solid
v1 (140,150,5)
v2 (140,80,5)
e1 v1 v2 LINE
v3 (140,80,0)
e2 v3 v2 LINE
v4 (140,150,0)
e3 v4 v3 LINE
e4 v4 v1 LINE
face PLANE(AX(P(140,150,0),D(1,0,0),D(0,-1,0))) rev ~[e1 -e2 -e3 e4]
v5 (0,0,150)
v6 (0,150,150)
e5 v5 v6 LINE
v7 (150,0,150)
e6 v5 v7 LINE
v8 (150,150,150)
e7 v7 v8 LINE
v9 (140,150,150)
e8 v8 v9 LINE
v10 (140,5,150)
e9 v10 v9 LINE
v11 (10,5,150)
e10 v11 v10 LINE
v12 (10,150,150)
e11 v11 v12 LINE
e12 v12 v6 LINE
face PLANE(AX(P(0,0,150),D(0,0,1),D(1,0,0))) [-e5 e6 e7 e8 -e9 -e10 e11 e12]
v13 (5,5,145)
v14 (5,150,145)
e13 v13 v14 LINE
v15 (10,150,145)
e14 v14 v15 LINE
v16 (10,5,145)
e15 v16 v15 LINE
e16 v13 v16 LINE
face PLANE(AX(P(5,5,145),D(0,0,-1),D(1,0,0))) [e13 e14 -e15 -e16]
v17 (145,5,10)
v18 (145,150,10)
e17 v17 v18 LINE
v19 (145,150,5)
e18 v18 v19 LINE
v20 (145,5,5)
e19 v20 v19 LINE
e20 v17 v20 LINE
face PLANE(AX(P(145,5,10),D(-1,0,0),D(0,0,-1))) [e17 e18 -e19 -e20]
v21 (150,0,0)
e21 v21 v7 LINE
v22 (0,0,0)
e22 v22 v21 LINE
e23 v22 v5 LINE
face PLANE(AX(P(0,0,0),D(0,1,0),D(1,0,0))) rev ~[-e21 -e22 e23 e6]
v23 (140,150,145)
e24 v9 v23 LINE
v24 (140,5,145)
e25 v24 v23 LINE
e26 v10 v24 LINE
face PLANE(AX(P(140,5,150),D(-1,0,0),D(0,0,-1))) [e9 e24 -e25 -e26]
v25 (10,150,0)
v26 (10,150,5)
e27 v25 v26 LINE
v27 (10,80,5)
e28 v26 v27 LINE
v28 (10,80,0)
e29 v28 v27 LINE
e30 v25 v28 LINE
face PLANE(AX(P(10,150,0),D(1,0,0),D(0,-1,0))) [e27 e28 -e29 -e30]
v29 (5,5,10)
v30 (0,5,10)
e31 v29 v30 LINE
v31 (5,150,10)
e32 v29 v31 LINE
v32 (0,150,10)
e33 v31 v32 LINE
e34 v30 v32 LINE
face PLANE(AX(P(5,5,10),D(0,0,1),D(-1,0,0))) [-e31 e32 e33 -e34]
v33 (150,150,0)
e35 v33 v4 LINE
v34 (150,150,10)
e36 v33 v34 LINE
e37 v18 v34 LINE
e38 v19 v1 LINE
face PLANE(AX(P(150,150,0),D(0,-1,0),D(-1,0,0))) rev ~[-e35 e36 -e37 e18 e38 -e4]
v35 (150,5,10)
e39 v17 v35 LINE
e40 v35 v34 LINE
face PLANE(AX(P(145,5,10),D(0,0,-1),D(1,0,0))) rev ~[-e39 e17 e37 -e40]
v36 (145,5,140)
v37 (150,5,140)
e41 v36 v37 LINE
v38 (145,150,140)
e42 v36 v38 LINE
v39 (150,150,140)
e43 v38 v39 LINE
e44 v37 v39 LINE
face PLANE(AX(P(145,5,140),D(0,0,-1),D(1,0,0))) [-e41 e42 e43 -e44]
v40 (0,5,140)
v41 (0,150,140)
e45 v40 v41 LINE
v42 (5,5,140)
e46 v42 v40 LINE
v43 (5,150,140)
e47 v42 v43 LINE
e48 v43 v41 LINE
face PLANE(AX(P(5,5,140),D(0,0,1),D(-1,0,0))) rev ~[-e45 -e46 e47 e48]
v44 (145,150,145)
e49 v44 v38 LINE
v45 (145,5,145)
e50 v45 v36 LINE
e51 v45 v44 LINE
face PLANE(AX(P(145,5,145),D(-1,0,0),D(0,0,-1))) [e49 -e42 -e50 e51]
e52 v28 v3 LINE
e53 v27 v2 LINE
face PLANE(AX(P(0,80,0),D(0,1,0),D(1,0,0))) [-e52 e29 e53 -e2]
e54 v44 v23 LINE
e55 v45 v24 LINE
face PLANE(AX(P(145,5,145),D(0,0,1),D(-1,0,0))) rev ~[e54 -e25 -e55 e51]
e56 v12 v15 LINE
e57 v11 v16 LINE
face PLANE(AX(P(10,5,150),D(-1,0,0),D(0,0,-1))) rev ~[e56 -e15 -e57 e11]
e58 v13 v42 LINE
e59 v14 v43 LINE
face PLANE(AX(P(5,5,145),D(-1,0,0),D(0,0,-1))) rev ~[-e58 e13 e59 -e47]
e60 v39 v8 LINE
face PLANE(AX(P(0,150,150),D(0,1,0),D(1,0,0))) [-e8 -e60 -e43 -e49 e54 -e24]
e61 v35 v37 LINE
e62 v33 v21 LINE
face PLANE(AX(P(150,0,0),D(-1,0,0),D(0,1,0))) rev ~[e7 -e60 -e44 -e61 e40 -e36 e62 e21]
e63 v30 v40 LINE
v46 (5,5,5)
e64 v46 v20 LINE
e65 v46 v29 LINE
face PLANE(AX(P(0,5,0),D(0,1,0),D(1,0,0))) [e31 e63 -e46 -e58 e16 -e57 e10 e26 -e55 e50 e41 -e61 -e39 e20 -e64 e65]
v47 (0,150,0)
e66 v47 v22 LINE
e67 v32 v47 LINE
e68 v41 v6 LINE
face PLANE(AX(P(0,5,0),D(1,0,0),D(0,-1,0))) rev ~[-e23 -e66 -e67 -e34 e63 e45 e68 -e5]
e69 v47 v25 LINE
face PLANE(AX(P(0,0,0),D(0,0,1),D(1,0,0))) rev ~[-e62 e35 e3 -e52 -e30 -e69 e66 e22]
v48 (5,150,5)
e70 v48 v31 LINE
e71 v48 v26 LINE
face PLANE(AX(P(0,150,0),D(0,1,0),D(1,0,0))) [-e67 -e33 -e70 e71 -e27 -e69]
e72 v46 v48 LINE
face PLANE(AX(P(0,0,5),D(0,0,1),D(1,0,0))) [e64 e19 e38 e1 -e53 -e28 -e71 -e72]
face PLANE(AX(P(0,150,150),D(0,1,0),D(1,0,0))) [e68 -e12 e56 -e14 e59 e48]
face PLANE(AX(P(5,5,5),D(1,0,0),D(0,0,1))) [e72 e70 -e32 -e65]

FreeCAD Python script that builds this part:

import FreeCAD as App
import Part
import Sketcher
from FreeCAD import Vector
Q = App.Units.Quantity

doc = App.newDocument("Part")
params = doc.addObject("Spreadsheet::Sheet", "Params")
for row, (alias, value) in enumerate([
    ("sketch1_width", "150 mm"),
    ("sketch1_height", "5 mm"),
    ("pad1_length", "150 mm"),
    ("sketch2_width", "150 mm"),
    ("pad2_length", "5 mm"),
    ("sketch3_width", "10 mm"),
    ("pad3_length", "5 mm"),
    ("sketch4_width", "5 mm"),
    ("pad4_length", "145 mm"),
], start=1):
    params.set(f"A{row}", alias)
    params.set(f"B{row}", "=" + value)
    params.setAlias(f"B{row}", alias)

body = doc.addObject("PartDesign::Body", "Body")

# Sketch on XY plane
sketch1 = body.newObject("Sketcher::SketchObject", "Sketch")
sketch1.AttachmentSupport = (doc.getObject("XY_Plane"), [""])
sketch1.MapMode = "FlatFace"
sketch1.addGeometry([
    Part.LineSegment(Vector(0, 5, 0), Vector(0, 0, 0)),
    Part.LineSegment(Vector(0, 0, 0), Vector(150, 0, 0)),
    Part.LineSegment(Vector(150, 0, 0), Vector(150, 5, 0)),
    Part.LineSegment(Vector(150, 5, 0), Vector(0, 5, 0)),
], False)
sketch1.addConstraint([
    Sketcher.Constraint("Coincident", 0, 2, 1, 1),
    Sketcher.Constraint("Coincident", 1, 2, 2, 1),
    Sketcher.Constraint("Coincident", 2, 2, 3, 1),
    Sketcher.Constraint("Coincident", 3, 2, 0, 1),
    Sketcher.Constraint("Vertical", 0),
    Sketcher.Constraint("Horizontal", 1),
    Sketcher.Constraint("Vertical", 2),
    Sketcher.Constraint("Horizontal", 3),
    Sketcher.Constraint("Coincident", 0, 2, -1, 1),
    Sketcher.Constraint("DistanceX", 1, 1, 1, 2, Q("150 mm")),
    Sketcher.Constraint("DistanceY", 0, 2, 0, 1, Q("5 mm")),
])
sketch1.setExpression("Constraints[9]", "Params.sketch1_width")
sketch1.setExpression("Constraints[10]", "Params.sketch1_height")
pad1 = body.newObject("PartDesign::Pad", "Pad")
pad1.Profile = sketch1
pad1.setExpression("Length", "Params.pad1_length")

# Sketch on XY plane
sketch2 = body.newObject("Sketcher::SketchObject", "Sketch001")
sketch2.AttachmentSupport = (doc.getObject("XY_Plane"), [""])
sketch2.MapMode = "FlatFace"
sketch2.addGeometry([
    Part.LineSegment(Vector(0, 80, 0), Vector(0, 5, 0)),
    Part.LineSegment(Vector(0, 5, 0), Vector(150, 5, 0)),
    Part.LineSegment(Vector(150, 5, 0), Vector(150, 80, 0)),
    Part.LineSegment(Vector(150, 80, 0), Vector(0, 80, 0)),
], False)
sketch2.addConstraint([
    Sketcher.Constraint("Coincident", 0, 2, 1, 1),
    Sketcher.Constraint("Coincident", 1, 2, 2, 1),
    Sketcher.Constraint("Coincident", 2, 2, 3, 1),
    Sketcher.Constraint("Coincident", 3, 2, 0, 1),
    Sketcher.Constraint("Vertical", 0),
    Sketcher.Constraint("Horizontal", 1),
    Sketcher.Constraint("Vertical", 2),
    Sketcher.Constraint("Horizontal", 3),
    Sketcher.Constraint("PointOnObject", 0, 2, -2),
    Sketcher.Constraint("DistanceX", 1, 1, 1, 2, Q("150 mm")),
    Sketcher.Constraint("DistanceY", -1, 1, 0, 2, Q("5 mm")),
    Sketcher.Constraint("DistanceY", -1, 1, 2, 2, Q("80 mm")),
])
sketch2.setExpression("Constraints[9]", "Params.sketch2_width")
pad2 = body.newObject("PartDesign::Pad", "Pad001")
pad2.Profile = sketch2
pad2.setExpression("Length", "Params.pad2_length")

# Sketch on XY plane
sketch3 = body.newObject("Sketcher::SketchObject", "Sketch002")
sketch3.AttachmentSupport = (doc.getObject("XY_Plane"), [""])
sketch3.MapMode = "FlatFace"
sketch3.addGeometry([
    Part.LineSegment(Vector(0, 150, 0), Vector(0, 80, 0)),  # 0
    Part.LineSegment(Vector(0, 80, 0), Vector(10, 80, 0)),  # 1
    Part.LineSegment(Vector(10, 80, 0), Vector(10, 150, 0)),  # 2
    Part.LineSegment(Vector(10, 150, 0), Vector(0, 150, 0)),  # 3
    Part.LineSegment(Vector(140, 80, 0), Vector(150, 80, 0)),  # 4
    Part.LineSegment(Vector(150, 80, 0), Vector(150, 150, 0)),  # 5
    Part.LineSegment(Vector(150, 150, 0), Vector(140, 150, 0)),  # 6
    Part.LineSegment(Vector(140, 150, 0), Vector(140, 80, 0)),  # 7
], False)
sketch3.addConstraint([
    Sketcher.Constraint("Coincident", 0, 2, 1, 1),
    Sketcher.Constraint("Coincident", 1, 2, 2, 1),
    Sketcher.Constraint("Coincident", 2, 2, 3, 1),
    Sketcher.Constraint("Coincident", 3, 2, 0, 1),
    Sketcher.Constraint("Coincident", 4, 2, 5, 1),
    Sketcher.Constraint("Coincident", 5, 2, 6, 1),
    Sketcher.Constraint("Coincident", 6, 2, 7, 1),
    Sketcher.Constraint("Coincident", 7, 2, 4, 1),
    Sketcher.Constraint("Vertical", 0),
    Sketcher.Constraint("Horizontal", 1),
    Sketcher.Constraint("Vertical", 2),
    Sketcher.Constraint("Horizontal", 3),
    Sketcher.Constraint("Horizontal", 4),
    Sketcher.Constraint("Vertical", 5),
    Sketcher.Constraint("Horizontal", 6),
    Sketcher.Constraint("Vertical", 7),
    Sketcher.Constraint("PointOnObject", 0, 2, -2),
    Sketcher.Constraint("Horizontal", 1, 2, 4, 2),
    Sketcher.Constraint("Horizontal", 3, 2, 5, 2),
    Sketcher.Constraint("Equal", 3, 4),
    Sketcher.Constraint("DistanceX", 1, 1, 1, 2, Q("10 mm")),
    Sketcher.Constraint("DistanceY", -1, 1, 0, 2, Q("80 mm")),
    Sketcher.Constraint("DistanceY", -1, 1, 2, 2, Q("150 mm")),
    Sketcher.Constraint("DistanceX", -1, 1, 4, 2, Q("150 mm")),
])
sketch3.setExpression("Constraints[20]", "Params.sketch3_width")
pad3 = body.newObject("PartDesign::Pad", "Pad002")
pad3.Profile = sketch3
pad3.setExpression("Length", "Params.pad3_length")

# Sketch on XZ plane
sketch4 = body.newObject("Sketcher::SketchObject", "Sketch003")
sketch4.AttachmentSupport = (doc.getObject("XZ_Plane"), [""])
sketch4.MapMode = "FlatFace"
sketch4.AttachmentOffset = App.Placement(Vector(0, 0, -5), App.Rotation())
sketch4.addGeometry([
    Part.LineSegment(Vector(150, 10, 0), Vector(150, 5, 0)),  # 0
    Part.LineSegment(Vector(150, 5, 0), Vector(145, 5, 0)),  # 1
    Part.LineSegment(Vector(145, 5, 0), Vector(145, 10, 0)),  # 2
    Part.LineSegment(Vector(145, 10, 0), Vector(150, 10, 0)),  # 3
    Part.LineSegment(Vector(150, 150, 0), Vector(150, 140, 0)),  # 4
    Part.LineSegment(Vector(150, 140, 0), Vector(145, 140, 0)),  # 5
    Part.LineSegment(Vector(145, 140, 0), Vector(145, 145, 0)),  # 6
    Part.LineSegment(Vector(145, 145, 0), Vector(140, 145, 0)),  # 7
    Part.LineSegment(Vector(140, 145, 0), Vector(140, 150, 0)),  # 8
    Part.LineSegment(Vector(140, 150, 0), Vector(150, 150, 0)),  # 9
    Part.LineSegment(Vector(5, 10, 0), Vector(5, 5, 0)),  # 10
    Part.LineSegment(Vector(5, 5, 0), Vector(0, 5, 0)),  # 11
    Part.LineSegment(Vector(0, 5, 0), Vector(0, 10, 0)),  # 12
    Part.LineSegment(Vector(0, 10, 0), Vector(5, 10, 0)),  # 13
    Part.LineSegment(Vector(5, 140, 0), Vector(0, 140, 0)),  # 14
    Part.LineSegment(Vector(0, 140, 0), Vector(0, 150, 0)),  # 15
    Part.LineSegment(Vector(0, 150, 0), Vector(10, 150, 0)),  # 16
    Part.LineSegment(Vector(10, 150, 0), Vector(10, 145, 0)),  # 17
    Part.LineSegment(Vector(10, 145, 0), Vector(5, 145, 0)),  # 18
    Part.LineSegment(Vector(5, 145, 0), Vector(5, 140, 0)),  # 19
], False)
sketch4.addConstraint([
    Sketcher.Constraint("Coincident", 0, 2, 1, 1),
    Sketcher.Constraint("Coincident", 1, 2, 2, 1),
    Sketcher.Constraint("Coincident", 2, 2, 3, 1),
    Sketcher.Constraint("Coincident", 3, 2, 0, 1),
    Sketcher.Constraint("Coincident", 4, 2, 5, 1),
    Sketcher.Constraint("Coincident", 5, 2, 6, 1),
    Sketcher.Constraint("Coincident", 6, 2, 7, 1),
    Sketcher.Constraint("Coincident", 7, 2, 8, 1),
    Sketcher.Constraint("Coincident", 8, 2, 9, 1),
    Sketcher.Constraint("Coincident", 9, 2, 4, 1),
    Sketcher.Constraint("Coincident", 10, 2, 11, 1),
    Sketcher.Constraint("Coincident", 11, 2, 12, 1),
    Sketcher.Constraint("Coincident", 12, 2, 13, 1),
    Sketcher.Constraint("Coincident", 13, 2, 10, 1),
    Sketcher.Constraint("Coincident", 14, 2, 15, 1),
    Sketcher.Constraint("Coincident", 15, 2, 16, 1),
    Sketcher.Constraint("Coincident", 16, 2, 17, 1),
    Sketcher.Constraint("Coincident", 17, 2, 18, 1),
    Sketcher.Constraint("Coincident", 18, 2, 19, 1),
    Sketcher.Constraint("Coincident", 19, 2, 14, 1),
    Sketcher.Constraint("Vertical", 0),
    Sketcher.Constraint("Horizontal", 1),
    Sketcher.Constraint("Vertical", 2),
    Sketcher.Constraint("Horizontal", 3),
    Sketcher.Constraint("Vertical", 4),
    Sketcher.Constraint("Horizontal", 5),
    Sketcher.Constraint("Vertical", 6),
    Sketcher.Constraint("Horizontal", 7),
    Sketcher.Constraint("Vertical", 8),
    Sketcher.Constraint("Horizontal", 9),
    Sketcher.Constraint("Vertical", 10),
    Sketcher.Constraint("Horizontal", 11),
    Sketcher.Constraint("Vertical", 12),
    Sketcher.Constraint("Horizontal", 13),
    Sketcher.Constraint("Horizontal", 14),
    Sketcher.Constraint("Vertical", 15),
    Sketcher.Constraint("Horizontal", 16),
    Sketcher.Constraint("Vertical", 17),
    Sketcher.Constraint("Horizontal", 18),
    Sketcher.Constraint("Vertical", 19),
    Sketcher.Constraint("PointOnObject", 11, 2, -2),
    Sketcher.Constraint("PointOnObject", 14, 2, -2),
    Sketcher.Constraint("Horizontal", 1, 2, 10, 2),
    Sketcher.Constraint("Horizontal", 3, 2, 12, 2),
    Sketcher.Constraint("Horizontal", 5, 2, 14, 2),
    Sketcher.Constraint("Horizontal", 9, 2, 15, 2),
    Sketcher.Constraint("Horizontal", 7, 2, 17, 2),
    Sketcher.Constraint("Vertical", 3, 2, 4, 2),
    Sketcher.Constraint("Vertical", 2, 2, 5, 2),
    Sketcher.Constraint("Vertical", 13, 2, 18, 2),
    Sketcher.Constraint("Equal", 5, 7),
    Sketcher.Constraint("Equal", 7, 11),
    Sketcher.Constraint("Equal", 9, 16),
    Sketcher.Constraint("Equal", 18, 0),
    Sketcher.Constraint("Equal", 16, 4),
    Sketcher.Constraint("Equal", 2, 6),
    Sketcher.Constraint("DistanceX", 1, 2, 1, 1, Q("5 mm")),
    Sketcher.Constraint("DistanceX", -1, 1, 0, 2, Q("150 mm")),
    Sketcher.Constraint("DistanceY", -1, 1, 0, 2, Q("5 mm")),
    Sketcher.Constraint("DistanceY", -1, 1, 8, 2, Q("150 mm")),
])
sketch4.setExpression("Constraints[56]", "Params.sketch4_width")
pad4 = body.newObject("PartDesign::Pad", "Pad003")
pad4.Profile = sketch4
pad4.setExpression("Length", "Params.pad4_length")
pad4.Reversed = True

doc.recompute()
